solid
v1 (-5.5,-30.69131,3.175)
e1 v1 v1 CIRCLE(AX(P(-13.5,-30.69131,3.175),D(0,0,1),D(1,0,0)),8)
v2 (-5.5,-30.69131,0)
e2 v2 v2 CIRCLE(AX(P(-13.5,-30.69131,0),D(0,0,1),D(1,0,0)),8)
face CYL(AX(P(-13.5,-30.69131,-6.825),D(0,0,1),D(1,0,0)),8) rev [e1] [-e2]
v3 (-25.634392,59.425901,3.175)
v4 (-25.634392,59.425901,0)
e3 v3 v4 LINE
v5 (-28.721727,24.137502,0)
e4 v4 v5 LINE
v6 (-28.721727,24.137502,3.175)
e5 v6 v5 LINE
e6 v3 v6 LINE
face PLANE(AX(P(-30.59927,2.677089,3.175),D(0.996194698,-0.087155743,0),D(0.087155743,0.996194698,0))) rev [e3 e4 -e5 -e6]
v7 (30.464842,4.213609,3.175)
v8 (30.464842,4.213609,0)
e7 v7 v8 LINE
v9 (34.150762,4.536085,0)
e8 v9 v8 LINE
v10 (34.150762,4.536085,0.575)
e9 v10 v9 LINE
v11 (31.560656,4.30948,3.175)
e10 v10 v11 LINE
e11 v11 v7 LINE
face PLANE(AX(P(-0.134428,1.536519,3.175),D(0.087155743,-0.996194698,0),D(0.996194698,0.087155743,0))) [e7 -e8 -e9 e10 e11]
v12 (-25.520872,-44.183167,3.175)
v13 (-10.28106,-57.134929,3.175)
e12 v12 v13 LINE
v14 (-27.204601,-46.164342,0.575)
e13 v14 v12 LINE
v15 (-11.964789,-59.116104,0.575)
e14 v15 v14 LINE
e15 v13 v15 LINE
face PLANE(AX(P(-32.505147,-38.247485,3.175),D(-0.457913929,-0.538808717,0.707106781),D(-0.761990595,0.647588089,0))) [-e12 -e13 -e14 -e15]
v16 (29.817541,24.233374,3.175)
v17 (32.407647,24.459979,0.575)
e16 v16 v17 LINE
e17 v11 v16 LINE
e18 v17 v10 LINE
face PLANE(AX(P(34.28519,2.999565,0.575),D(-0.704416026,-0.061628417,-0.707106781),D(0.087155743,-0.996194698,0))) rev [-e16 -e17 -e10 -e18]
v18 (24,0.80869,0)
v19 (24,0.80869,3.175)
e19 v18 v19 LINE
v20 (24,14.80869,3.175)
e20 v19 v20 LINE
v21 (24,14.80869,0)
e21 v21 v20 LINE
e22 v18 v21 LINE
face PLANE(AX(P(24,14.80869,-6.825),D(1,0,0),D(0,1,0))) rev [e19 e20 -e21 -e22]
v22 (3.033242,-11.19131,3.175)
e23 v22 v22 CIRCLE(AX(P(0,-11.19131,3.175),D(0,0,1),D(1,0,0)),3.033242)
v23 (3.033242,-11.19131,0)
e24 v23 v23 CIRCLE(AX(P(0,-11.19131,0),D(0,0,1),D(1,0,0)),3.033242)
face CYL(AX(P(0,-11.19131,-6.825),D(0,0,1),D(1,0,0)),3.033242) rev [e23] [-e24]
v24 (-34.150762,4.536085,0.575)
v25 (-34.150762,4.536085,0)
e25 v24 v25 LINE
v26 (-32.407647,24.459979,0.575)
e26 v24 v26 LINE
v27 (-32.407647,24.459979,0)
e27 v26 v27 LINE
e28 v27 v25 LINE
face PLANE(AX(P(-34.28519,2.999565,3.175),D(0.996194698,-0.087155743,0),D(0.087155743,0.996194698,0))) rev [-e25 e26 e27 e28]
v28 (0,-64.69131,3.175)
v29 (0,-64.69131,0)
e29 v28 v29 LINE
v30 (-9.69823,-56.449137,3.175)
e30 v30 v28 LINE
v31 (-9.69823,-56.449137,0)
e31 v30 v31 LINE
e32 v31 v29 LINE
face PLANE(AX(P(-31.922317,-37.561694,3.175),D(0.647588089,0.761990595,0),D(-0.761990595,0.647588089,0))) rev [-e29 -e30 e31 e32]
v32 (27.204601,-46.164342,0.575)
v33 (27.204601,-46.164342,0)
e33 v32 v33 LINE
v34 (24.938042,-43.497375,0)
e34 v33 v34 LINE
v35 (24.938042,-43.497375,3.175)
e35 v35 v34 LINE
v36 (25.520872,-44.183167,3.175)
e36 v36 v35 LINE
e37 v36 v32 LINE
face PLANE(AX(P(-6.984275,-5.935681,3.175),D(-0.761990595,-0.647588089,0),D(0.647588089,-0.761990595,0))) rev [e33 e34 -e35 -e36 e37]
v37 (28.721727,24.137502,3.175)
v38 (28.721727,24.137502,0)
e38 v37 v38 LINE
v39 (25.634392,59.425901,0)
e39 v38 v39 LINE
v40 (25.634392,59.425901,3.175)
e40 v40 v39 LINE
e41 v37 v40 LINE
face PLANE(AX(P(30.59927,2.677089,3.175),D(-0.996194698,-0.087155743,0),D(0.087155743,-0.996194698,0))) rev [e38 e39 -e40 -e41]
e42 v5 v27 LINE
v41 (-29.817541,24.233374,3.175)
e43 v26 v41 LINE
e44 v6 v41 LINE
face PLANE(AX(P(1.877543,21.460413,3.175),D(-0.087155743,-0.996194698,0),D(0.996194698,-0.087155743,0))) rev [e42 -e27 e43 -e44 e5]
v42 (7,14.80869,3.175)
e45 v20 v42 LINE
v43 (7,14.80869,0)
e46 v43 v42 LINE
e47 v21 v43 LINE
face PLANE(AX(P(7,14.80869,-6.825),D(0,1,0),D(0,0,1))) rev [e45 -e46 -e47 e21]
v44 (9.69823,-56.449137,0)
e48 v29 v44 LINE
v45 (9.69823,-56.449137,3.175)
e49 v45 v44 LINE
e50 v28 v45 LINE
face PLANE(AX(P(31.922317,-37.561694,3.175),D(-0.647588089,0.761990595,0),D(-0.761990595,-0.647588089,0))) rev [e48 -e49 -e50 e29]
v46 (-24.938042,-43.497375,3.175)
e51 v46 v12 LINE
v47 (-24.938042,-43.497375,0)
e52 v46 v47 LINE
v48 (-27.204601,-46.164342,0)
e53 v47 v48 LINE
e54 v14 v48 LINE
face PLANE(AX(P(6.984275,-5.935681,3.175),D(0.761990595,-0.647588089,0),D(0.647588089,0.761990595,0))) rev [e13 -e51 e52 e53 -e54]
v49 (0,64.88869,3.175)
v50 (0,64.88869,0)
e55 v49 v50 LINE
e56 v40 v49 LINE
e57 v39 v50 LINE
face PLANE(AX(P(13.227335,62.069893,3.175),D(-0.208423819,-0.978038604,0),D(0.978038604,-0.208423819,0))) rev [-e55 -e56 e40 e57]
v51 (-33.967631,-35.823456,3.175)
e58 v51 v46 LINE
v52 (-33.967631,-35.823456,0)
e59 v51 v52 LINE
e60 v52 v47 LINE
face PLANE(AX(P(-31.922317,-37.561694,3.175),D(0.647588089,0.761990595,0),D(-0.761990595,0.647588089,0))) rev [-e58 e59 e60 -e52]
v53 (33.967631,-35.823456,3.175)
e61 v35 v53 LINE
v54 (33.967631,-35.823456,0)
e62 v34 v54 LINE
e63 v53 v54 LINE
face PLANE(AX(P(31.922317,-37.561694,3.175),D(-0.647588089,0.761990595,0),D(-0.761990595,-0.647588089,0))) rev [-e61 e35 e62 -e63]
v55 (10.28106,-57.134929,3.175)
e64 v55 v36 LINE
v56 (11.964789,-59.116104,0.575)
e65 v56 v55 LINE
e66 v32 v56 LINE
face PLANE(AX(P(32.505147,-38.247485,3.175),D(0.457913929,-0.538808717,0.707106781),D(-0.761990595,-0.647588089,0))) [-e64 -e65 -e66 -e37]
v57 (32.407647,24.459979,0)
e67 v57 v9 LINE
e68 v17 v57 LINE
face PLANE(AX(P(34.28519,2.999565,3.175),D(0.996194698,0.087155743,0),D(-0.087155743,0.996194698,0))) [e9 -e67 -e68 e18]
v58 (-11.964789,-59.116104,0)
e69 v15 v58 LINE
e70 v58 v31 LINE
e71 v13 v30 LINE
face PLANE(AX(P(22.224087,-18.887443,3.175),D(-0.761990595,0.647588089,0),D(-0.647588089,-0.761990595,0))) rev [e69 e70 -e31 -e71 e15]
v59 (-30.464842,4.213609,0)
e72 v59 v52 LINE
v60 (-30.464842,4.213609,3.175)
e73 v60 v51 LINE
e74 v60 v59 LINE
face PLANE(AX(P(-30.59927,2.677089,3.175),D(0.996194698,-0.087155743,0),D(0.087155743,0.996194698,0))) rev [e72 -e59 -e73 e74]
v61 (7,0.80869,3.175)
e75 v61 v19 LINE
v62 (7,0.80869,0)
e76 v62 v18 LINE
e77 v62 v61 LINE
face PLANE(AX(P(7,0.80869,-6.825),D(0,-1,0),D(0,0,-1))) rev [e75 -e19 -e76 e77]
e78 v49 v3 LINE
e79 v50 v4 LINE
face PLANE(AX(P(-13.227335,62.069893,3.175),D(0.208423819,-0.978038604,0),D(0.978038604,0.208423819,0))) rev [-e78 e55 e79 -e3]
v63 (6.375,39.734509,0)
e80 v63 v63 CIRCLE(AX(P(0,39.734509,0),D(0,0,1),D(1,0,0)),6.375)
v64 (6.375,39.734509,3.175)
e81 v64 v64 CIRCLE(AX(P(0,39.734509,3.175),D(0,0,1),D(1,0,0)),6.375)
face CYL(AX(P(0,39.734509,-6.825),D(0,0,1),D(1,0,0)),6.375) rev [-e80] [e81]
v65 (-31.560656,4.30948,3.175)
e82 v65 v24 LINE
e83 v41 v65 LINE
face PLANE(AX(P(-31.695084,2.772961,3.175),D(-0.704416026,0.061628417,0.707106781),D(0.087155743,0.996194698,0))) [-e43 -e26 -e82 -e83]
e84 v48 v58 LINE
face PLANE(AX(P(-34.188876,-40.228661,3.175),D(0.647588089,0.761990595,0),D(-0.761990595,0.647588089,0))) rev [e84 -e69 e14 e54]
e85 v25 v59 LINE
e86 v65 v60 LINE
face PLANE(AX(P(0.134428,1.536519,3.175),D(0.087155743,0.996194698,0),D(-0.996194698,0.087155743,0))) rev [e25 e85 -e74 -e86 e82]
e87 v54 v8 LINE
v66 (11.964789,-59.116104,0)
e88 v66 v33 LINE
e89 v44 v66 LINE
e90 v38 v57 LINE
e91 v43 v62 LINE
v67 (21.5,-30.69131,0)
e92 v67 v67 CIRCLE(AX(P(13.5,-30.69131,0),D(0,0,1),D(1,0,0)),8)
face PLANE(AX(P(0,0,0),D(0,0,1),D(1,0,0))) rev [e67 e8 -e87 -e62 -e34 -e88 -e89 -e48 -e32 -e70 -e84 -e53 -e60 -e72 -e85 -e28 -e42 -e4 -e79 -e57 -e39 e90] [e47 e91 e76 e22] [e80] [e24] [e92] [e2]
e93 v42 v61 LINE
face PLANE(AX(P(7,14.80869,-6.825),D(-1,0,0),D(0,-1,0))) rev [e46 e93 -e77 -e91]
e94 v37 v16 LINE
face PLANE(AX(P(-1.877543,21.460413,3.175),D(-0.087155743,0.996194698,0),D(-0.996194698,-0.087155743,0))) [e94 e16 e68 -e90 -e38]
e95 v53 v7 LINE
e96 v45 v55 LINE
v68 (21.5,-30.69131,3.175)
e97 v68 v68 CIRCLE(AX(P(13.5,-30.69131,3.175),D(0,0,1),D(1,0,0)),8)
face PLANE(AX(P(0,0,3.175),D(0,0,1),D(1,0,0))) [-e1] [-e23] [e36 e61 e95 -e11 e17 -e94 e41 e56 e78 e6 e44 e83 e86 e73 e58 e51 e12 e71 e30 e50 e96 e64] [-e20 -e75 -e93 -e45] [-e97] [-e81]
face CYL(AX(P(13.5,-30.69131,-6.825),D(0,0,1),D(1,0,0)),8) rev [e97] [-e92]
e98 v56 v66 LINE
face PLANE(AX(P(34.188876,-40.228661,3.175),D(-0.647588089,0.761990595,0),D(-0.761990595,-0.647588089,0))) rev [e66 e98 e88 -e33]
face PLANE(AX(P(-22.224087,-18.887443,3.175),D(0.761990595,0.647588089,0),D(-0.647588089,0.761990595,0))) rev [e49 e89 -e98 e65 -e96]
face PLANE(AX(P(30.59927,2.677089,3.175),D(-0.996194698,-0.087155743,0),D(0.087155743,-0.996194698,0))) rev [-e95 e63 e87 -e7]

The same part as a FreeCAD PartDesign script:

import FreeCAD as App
import Part
import Sketcher

V = App.Vector
Q = App.Units.Quantity


def edges_at(feature, points):
    """Names of the edges that pass closest to the given points."""
    edges = feature.Shape.Edges
    near = lambda p: min(range(len(edges)), key=lambda i: edges[i].distToShape(Part.Vertex(*p))[0])
    return sorted({f"Edge{near(p) + 1}" for p in points})

doc = App.newDocument("Part")
body = doc.addObject("PartDesign::Body", "Body")

# Sketch on XY plane
sketch1 = body.newObject("Sketcher::SketchObject", "Sketch")
sketch1.AttachmentSupport = (doc.getObject("XY_Plane"), [""])
sketch1.MapMode = "FlatFace"
sketch1.addGeometry(Part.LineSegment(V(34, -35.8, 0), V(30.5, 4.2, 0)), False)
sketch1.addGeometry(Part.LineSegment(V(30.5, 4.2, 0), V(34.2, 4.5, 0)), False)
sketch1.addGeometry(Part.LineSegment(V(34.2, 4.5, 0), V(32.4, 24.5, 0)), False)
sketch1.addGeometry(Part.LineSegment(V(32.4, 24.5, 0), V(28.7, 24.1, 0)), False)
sketch1.addGeometry(Part.LineSegment(V(28.7, 24.1, 0), V(25.6, 59.4, 0)), False)
sketch1.addGeometry(Part.LineSegment(V(25.6, 59.4, 0), V(0, 64.9, 0)), False)
sketch1.addGeometry(Part.LineSegment(V(0, 64.9, 0), V(-25.6, 59.4, 0)), False)
sketch1.addGeometry(Part.LineSegment(V(-25.6, 59.4, 0), V(-28.7, 24.1, 0)), False)
sketch1.addGeometry(Part.LineSegment(V(-28.7, 24.1, 0), V(-32.4, 24.5, 0)), False)
sketch1.addGeometry(Part.LineSegment(V(-32.4, 24.5, 0), V(-34.2, 4.5, 0)), False)
sketch1.addGeometry(Part.LineSegment(V(-34.2, 4.5, 0), V(-30.5, 4.2, 0)), False)
sketch1.addGeometry(Part.LineSegment(V(-30.5, 4.2, 0), V(-34, -35.8, 0)), False)
sketch1.addGeometry(Part.LineSegment(V(-34, -35.8, 0), V(-24.9, -43.5, 0)), False)
sketch1.addGeometry(Part.LineSegment(V(-24.9, -43.5, 0), V(-27.2, -46.2, 0)), False)
sketch1.addGeometry(Part.LineSegment(V(-27.2, -46.2, 0), V(-12, -59.1, 0)), False)
sketch1.addGeometry(Part.LineSegment(V(-12, -59.1, 0), V(-9.7, -56.4, 0)), False)
sketch1.addGeometry(Part.LineSegment(V(-9.7, -56.4, 0), V(0, -64.7, 0)), False)
sketch1.addGeometry(Part.LineSegment(V(0, -64.7, 0), V(9.7, -56.4, 0)), False)
sketch1.addGeometry(Part.LineSegment(V(9.7, -56.4, 0), V(12, -59.1, 0)), False)
sketch1.addGeometry(Part.LineSegment(V(12, -59.1, 0), V(27.2, -46.2, 0)), False)
sketch1.addGeometry(Part.LineSegment(V(27.2, -46.2, 0), V(24.9, -43.5, 0)), False)
sketch1.addGeometry(Part.LineSegment(V(24.9, -43.5, 0), V(34, -35.8, 0)), False)
sketch1.addConstraint(Sketcher.Constraint("Coincident", 0, 2, 1, 1))
sketch1.addConstraint(Sketcher.Constraint("Coincident", 1, 2, 2, 1))
sketch1.addConstraint(Sketcher.Constraint("Coincident", 2, 2, 3, 1))
sketch1.addConstraint(Sketcher.Constraint("Coincident", 3, 2, 4, 1))
sketch1.addConstraint(Sketcher.Constraint("Coincident", 4, 2, 5, 1))
sketch1.addConstraint(Sketcher.Constraint("Coincident", 5, 2, 6, 1))
sketch1.addConstraint(Sketcher.Constraint("Coincident", 6, 2, 7, 1))
sketch1.addConstraint(Sketcher.Constraint("Coincident", 7, 2, 8, 1))
sketch1.addConstraint(Sketcher.Constraint("Coincident", 8, 2, 9, 1))
sketch1.addConstraint(Sketcher.Constraint("Coincident", 9, 2, 10, 1))
sketch1.addConstraint(Sketcher.Constraint("Coincident", 10, 2, 11, 1))
sketch1.addConstraint(Sketcher.Constraint("Coincident", 11, 2, 12, 1))
sketch1.addConstraint(Sketcher.Constraint("Coincident", 12, 2, 13, 1))
sketch1.addConstraint(Sketcher.Constraint("Coincident", 13, 2, 14, 1))
sketch1.addConstraint(Sketcher.Constraint("Coincident", 14, 2, 15, 1))
sketch1.addConstraint(Sketcher.Constraint("Coincident", 15, 2, 16, 1))
sketch1.addConstraint(Sketcher.Constraint("Coincident", 16, 2, 17, 1))
sketch1.addConstraint(Sketcher.Constraint("Coincident", 17, 2, 18, 1))
sketch1.addConstraint(Sketcher.Constraint("Coincident", 18, 2, 19, 1))
sketch1.addConstraint(Sketcher.Constraint("Coincident", 19, 2, 20, 1))
sketch1.addConstraint(Sketcher.Constraint("Coincident", 20, 2, 21, 1))
sketch1.addConstraint(Sketcher.Constraint("Coincident", 21, 2, 0, 1))
sketch1.addConstraint(Sketcher.Constraint("Symmetric", 4, 2, 6, 2, -2))
sketch1.addConstraint(Sketcher.Constraint("Symmetric", 3, 2, 7, 2, -2))
sketch1.addConstraint(Sketcher.Constraint("Symmetric", 2, 2, 8, 2, -2))
sketch1.addConstraint(Sketcher.Constraint("Symmetric", 1, 2, 9, 2, -2))
sketch1.addConstraint(Sketcher.Constraint("Symmetric", 0, 2, 10, 2, -2))
sketch1.addConstraint(Sketcher.Constraint("Symmetric", 15, 2, 17, 2, -2))
sketch1.addConstraint(Sketcher.Constraint("Symmetric", 14, 2, 18, 2, -2))
sketch1.addConstraint(Sketcher.Constraint("Symmetric", 13, 2, 19, 2, -2))
sketch1.addConstraint(Sketcher.Constraint("Symmetric", 12, 2, 20, 2, -2))
sketch1.addConstraint(Sketcher.Constraint("Symmetric", 11, 2, 21, 2, -2))
sketch1.addConstraint(Sketcher.Constraint("PointOnObject", 5, 2, -2))
sketch1.addConstraint(Sketcher.Constraint("PointOnObject", 16, 2, -2))
sketch1.addConstraint(Sketcher.Constraint("Perpendicular", 0, 1))
sketch1.addConstraint(Sketcher.Constraint("Perpendicular", 1, 2))
sketch1.addConstraint(Sketcher.Constraint("Perpendicular", 2, 3))
sketch1.addConstraint(Sketcher.Constraint("Perpendicular", 3, 4))
sketch1.addConstraint(Sketcher.Constraint("Perpendicular", 12, 13))
sketch1.addConstraint(Sketcher.Constraint("Perpendicular", 13, 14))
sketch1.addConstraint(Sketcher.Constraint("Perpendicular", 14, 15))
sketch1.addConstraint(Sketcher.Constraint("Perpendicular", 15, 16))
sketch1.addConstraint(Sketcher.Constraint("Equal", 1, 3))
sketch1.addConstraint(Sketcher.Constraint("Equal", 9, 14))
sketch1.addConstraint(Sketcher.Constraint("Equal", 13, 15))
sketch1.addConstraint(Sketcher.Constraint("Angle", 0, Q("95 deg")))
sketch1.addConstraint(Sketcher.Constraint("Distance", 2, 20.0))
sketch1.addConstraint(Sketcher.Constraint("Distance", 1, 3.7))
sketch1.addConstraint(Sketcher.Constraint("Distance", 13, 3.5))
sketch1.addConstraint(Sketcher.Constraint("Angle", 5, Q("167.97 deg")))
sketch1.addConstraint(Sketcher.Constraint("Angle", 12, Q("-40.36 deg")))
sketch1.addConstraint(Sketcher.Constraint("Distance", 0, 40.19))
sketch1.addConstraint(Sketcher.Constraint("Distance", 5, 26.21))
sketch1.addConstraint(Sketcher.Constraint("Distance", 12, 11.85))
sketch1.addConstraint(Sketcher.Constraint("DistanceY", -1, 1, 4, 2, 59.425901))
sketch1.addConstraint(Sketcher.Constraint("DistanceX", 13, 2, -1, 1, 27.204601))
pad1 = body.newObject("PartDesign::Pad", "Pad")
pad1.Profile = sketch1
pad1.Length = 3.175
doc.recompute()

chamfer = body.newObject("PartDesign::Chamfer", "Chamfer")
chamfer.Base = (pad1, edges_at(pad1, [
    (19.585, -52.64, 3.175),
    (33.279, 14.498, 3.175),
    (-33.279, 14.498, 3.175),
    (-19.585, -52.64, 3.175),
]))
chamfer.Size = 2.6

# Sketch on XY plane
sketch2 = body.newObject("Sketcher::SketchObject", "Sketch001")
sketch2.AttachmentSupport = (doc.getObject("XY_Plane"), [""])
sketch2.MapMode = "FlatFace"
sketch2.AttachmentOffset = App.Placement(V(0, 0, 3.175), App.Rotation())
sketch2.addGeometry(Part.Circle(V(13.5, -30.7, 0), V(0, 0, 1), 8), False)
sketch2.addGeometry(Part.Circle(V(-13.5, -30.7, 0), V(0, 0, 1), 8), False)
sketch2.addGeometry(Part.Circle(V(0, -11.2, 0), V(0, 0, 1), 3), False)
sketch2.addGeometry(Part.Circle(V(0, 39.7, 0), V(0, 0, 1), 6.4), False)
sketch2.addGeometry(Part.LineSegment(V(7, 14.8, 0), V(7, 0.8, 0)), False)
sketch2.addGeometry(Part.LineSegment(V(7, 0.8, 0), V(24, 0.8, 0)), False)
sketch2.addGeometry(Part.LineSegment(V(24, 0.8, 0), V(24, 14.8, 0)), False)
sketch2.addGeometry(Part.LineSegment(V(24, 14.8, 0), V(7, 14.8, 0)), False)
sketch2.addConstraint(Sketcher.Constraint("Coincident", 4, 2, 5, 1))
sketch2.addConstraint(Sketcher.Constraint("Coincident", 5, 2, 6, 1))
sketch2.addConstraint(Sketcher.Constraint("Coincident", 6, 2, 7, 1))
sketch2.addConstraint(Sketcher.Constraint("Coincident", 7, 2, 4, 1))
sketch2.addConstraint(Sketcher.Constraint("Vertical", 4))
sketch2.addConstraint(Sketcher.Constraint("Horizontal", 5))
sketch2.addConstraint(Sketcher.Constraint("Vertical", 6))
sketch2.addConstraint(Sketcher.Constraint("Horizontal", 7))
sketch2.addConstraint(Sketcher.Constraint("Equal", 0, 1))
sketch2.addConstraint(Sketcher.Constraint("Symmetric", 0, 3, 1, 3, -2))
sketch2.addConstraint(Sketcher.Constraint("PointOnObject", 2, 3, -2))
sketch2.addConstraint(Sketcher.Constraint("PointOnObject", 3, 3, -2))
sketch2.addConstraint(Sketcher.Constraint("Diameter", 0, 16.0))
sketch2.addConstraint(Sketcher.Constraint("Diameter", 3, 12.75))
sketch2.addConstraint(Sketcher.Constraint("DistanceX", 5, 1, 5, 2, 17.0))
sketch2.addConstraint(Sketcher.Constraint("DistanceY", 4, 2, 4, 1, 14.0))
sketch2.addConstraint(Sketcher.Constraint("DistanceX", -1, 1, 4, 2, 7.0))
sketch2.addConstraint(Sketcher.Constraint("DistanceX", 1, 3, 0, 3, 27.0))
sketch2.addConstraint(Sketcher.Constraint("DistanceY", 2, 3, 4, 2, 12.0))
sketch2.addConstraint(Sketcher.Constraint("DistanceY", 0, 3, 2, 3, 19.5))
sketch2.addConstraint(Sketcher.Constraint("Diameter", 2, 6.066484))
sketch2.addConstraint(Sketcher.Constraint("DistanceY", 0, 3, -1, 1, 30.69131))
sketch2.addConstraint(Sketcher.Constraint("DistanceY", -1, 1, 3, 3, 39.734509))
pocket1 = body.newObject("PartDesign::Pocket", "Pocket")
pocket1.Profile = sketch2
pocket1.Length = 10

doc.recompute()
